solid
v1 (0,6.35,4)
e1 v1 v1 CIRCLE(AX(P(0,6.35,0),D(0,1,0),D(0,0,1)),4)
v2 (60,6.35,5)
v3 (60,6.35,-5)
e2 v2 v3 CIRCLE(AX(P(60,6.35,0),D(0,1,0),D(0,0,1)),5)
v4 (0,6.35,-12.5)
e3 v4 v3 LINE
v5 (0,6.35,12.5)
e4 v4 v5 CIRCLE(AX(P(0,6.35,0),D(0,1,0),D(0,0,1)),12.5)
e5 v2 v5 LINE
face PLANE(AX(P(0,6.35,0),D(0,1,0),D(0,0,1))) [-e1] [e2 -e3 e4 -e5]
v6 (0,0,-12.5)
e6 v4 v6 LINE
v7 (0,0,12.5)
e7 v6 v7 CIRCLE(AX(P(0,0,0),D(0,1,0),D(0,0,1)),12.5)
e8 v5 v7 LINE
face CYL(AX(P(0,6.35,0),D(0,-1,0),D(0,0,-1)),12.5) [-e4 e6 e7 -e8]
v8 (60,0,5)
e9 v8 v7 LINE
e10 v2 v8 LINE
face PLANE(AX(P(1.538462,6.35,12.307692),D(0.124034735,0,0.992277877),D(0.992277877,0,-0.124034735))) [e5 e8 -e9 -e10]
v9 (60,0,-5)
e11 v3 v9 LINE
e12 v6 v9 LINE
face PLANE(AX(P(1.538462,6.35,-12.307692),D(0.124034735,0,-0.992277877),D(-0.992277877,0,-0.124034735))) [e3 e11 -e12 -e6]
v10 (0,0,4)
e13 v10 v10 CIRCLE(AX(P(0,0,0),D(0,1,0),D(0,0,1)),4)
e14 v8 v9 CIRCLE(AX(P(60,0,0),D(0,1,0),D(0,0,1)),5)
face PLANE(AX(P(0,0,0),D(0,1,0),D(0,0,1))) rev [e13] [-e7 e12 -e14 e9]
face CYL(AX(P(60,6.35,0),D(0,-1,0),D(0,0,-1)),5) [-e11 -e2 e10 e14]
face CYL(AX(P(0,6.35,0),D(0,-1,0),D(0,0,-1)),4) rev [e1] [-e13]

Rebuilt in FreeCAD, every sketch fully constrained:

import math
import FreeCAD as App
import Part
import Sketcher
from FreeCAD import Vector

doc = App.newDocument("Part")
body = doc.addObject("PartDesign::Body", "Body")

sketch1 = body.newObject("Sketcher::SketchObject", "Sketch")
sketch1.AttachmentSupport = (doc.getObject("XZ_Plane"), [""])
sketch1.MapMode = "FlatFace"
sketch1.addGeometry(Part.LineSegment(Vector(3.1, -12.1, 0), Vector(0, -12.5, 0)), False)
sketch1.addGeometry(Part.ArcOfCircle(Part.Circle(Vector(0, 0, 0), Vector(0, 0, 1), 12.5), math.radians(90), math.radians(270)), False)
sketch1.addGeometry(Part.LineSegment(Vector(0, 12.5, 0), Vector(3.1, 12.1, 0)), False)
sketch1.addGeometry(Part.LineSegment(Vector(3.1, 12.1, 0), Vector(60, 5, 0)), False)
sketch1.addGeometry(Part.ArcOfCircle(Part.Circle(Vector(60, 0, 0), Vector(0, 0, 1), 5), math.radians(-90), math.radians(90)), False)
sketch1.addGeometry(Part.LineSegment(Vector(60, -5, 0), Vector(3.1, -12.1, 0)), False)
sketch1.addGeometry(Part.Circle(Vector(0, 0, 0), Vector(0, 0, 1), 4), False)
sketch1.addConstraint(Sketcher.Constraint("Coincident", 0, 2, 1, 2))
sketch1.addConstraint(Sketcher.Constraint("Coincident", 1, 1, 2, 1))
sketch1.addConstraint(Sketcher.Constraint("Coincident", 2, 2, 3, 1))
sketch1.addConstraint(Sketcher.Constraint("Coincident", 3, 2, 4, 2))
sketch1.addConstraint(Sketcher.Constraint("Coincident", 4, 1, 5, 1))
sketch1.addConstraint(Sketcher.Constraint("Coincident", 5, 2, 0, 1))
sketch1.addConstraint(Sketcher.Constraint("Coincident", 1, 3, -1, 1))
sketch1.addConstraint(Sketcher.Constraint("Coincident", 6, 3, -1, 1))
sketch1.addConstraint(Sketcher.Constraint("Symmetric", 3, 2, 4, 1, -1))
sketch1.addConstraint(Sketcher.Constraint("Symmetric", 2, 2, 5, 2, -1))
sketch1.addConstraint(Sketcher.Constraint("PointOnObject", 0, 2, -2))
sketch1.addConstraint(Sketcher.Constraint("PointOnObject", 1, 1, -2))
sketch1.addConstraint(Sketcher.Constraint("Parallel", 2, 3))
sketch1.addConstraint(Sketcher.Constraint("Vertical", 4, 3, 3, 2))
sketch1.addConstraint(Sketcher.Constraint("Diameter", 6, 8.0))
sketch1.addConstraint(Sketcher.Constraint("Radius", 4, 5.0))
sketch1.addConstraint(Sketcher.Constraint("Radius", 1, 12.5))
sketch1.addConstraint(Sketcher.Constraint("DistanceX", -1, 1, 4, 3, 60.0))
sketch1.addConstraint(Sketcher.Constraint("Distance", 0, 3.100868))
pad1 = body.newObject("PartDesign::Pad", "Pad")
pad1.Profile = sketch1
pad1.Length = 6.35
pad1.Reversed = True

doc.recompute()
